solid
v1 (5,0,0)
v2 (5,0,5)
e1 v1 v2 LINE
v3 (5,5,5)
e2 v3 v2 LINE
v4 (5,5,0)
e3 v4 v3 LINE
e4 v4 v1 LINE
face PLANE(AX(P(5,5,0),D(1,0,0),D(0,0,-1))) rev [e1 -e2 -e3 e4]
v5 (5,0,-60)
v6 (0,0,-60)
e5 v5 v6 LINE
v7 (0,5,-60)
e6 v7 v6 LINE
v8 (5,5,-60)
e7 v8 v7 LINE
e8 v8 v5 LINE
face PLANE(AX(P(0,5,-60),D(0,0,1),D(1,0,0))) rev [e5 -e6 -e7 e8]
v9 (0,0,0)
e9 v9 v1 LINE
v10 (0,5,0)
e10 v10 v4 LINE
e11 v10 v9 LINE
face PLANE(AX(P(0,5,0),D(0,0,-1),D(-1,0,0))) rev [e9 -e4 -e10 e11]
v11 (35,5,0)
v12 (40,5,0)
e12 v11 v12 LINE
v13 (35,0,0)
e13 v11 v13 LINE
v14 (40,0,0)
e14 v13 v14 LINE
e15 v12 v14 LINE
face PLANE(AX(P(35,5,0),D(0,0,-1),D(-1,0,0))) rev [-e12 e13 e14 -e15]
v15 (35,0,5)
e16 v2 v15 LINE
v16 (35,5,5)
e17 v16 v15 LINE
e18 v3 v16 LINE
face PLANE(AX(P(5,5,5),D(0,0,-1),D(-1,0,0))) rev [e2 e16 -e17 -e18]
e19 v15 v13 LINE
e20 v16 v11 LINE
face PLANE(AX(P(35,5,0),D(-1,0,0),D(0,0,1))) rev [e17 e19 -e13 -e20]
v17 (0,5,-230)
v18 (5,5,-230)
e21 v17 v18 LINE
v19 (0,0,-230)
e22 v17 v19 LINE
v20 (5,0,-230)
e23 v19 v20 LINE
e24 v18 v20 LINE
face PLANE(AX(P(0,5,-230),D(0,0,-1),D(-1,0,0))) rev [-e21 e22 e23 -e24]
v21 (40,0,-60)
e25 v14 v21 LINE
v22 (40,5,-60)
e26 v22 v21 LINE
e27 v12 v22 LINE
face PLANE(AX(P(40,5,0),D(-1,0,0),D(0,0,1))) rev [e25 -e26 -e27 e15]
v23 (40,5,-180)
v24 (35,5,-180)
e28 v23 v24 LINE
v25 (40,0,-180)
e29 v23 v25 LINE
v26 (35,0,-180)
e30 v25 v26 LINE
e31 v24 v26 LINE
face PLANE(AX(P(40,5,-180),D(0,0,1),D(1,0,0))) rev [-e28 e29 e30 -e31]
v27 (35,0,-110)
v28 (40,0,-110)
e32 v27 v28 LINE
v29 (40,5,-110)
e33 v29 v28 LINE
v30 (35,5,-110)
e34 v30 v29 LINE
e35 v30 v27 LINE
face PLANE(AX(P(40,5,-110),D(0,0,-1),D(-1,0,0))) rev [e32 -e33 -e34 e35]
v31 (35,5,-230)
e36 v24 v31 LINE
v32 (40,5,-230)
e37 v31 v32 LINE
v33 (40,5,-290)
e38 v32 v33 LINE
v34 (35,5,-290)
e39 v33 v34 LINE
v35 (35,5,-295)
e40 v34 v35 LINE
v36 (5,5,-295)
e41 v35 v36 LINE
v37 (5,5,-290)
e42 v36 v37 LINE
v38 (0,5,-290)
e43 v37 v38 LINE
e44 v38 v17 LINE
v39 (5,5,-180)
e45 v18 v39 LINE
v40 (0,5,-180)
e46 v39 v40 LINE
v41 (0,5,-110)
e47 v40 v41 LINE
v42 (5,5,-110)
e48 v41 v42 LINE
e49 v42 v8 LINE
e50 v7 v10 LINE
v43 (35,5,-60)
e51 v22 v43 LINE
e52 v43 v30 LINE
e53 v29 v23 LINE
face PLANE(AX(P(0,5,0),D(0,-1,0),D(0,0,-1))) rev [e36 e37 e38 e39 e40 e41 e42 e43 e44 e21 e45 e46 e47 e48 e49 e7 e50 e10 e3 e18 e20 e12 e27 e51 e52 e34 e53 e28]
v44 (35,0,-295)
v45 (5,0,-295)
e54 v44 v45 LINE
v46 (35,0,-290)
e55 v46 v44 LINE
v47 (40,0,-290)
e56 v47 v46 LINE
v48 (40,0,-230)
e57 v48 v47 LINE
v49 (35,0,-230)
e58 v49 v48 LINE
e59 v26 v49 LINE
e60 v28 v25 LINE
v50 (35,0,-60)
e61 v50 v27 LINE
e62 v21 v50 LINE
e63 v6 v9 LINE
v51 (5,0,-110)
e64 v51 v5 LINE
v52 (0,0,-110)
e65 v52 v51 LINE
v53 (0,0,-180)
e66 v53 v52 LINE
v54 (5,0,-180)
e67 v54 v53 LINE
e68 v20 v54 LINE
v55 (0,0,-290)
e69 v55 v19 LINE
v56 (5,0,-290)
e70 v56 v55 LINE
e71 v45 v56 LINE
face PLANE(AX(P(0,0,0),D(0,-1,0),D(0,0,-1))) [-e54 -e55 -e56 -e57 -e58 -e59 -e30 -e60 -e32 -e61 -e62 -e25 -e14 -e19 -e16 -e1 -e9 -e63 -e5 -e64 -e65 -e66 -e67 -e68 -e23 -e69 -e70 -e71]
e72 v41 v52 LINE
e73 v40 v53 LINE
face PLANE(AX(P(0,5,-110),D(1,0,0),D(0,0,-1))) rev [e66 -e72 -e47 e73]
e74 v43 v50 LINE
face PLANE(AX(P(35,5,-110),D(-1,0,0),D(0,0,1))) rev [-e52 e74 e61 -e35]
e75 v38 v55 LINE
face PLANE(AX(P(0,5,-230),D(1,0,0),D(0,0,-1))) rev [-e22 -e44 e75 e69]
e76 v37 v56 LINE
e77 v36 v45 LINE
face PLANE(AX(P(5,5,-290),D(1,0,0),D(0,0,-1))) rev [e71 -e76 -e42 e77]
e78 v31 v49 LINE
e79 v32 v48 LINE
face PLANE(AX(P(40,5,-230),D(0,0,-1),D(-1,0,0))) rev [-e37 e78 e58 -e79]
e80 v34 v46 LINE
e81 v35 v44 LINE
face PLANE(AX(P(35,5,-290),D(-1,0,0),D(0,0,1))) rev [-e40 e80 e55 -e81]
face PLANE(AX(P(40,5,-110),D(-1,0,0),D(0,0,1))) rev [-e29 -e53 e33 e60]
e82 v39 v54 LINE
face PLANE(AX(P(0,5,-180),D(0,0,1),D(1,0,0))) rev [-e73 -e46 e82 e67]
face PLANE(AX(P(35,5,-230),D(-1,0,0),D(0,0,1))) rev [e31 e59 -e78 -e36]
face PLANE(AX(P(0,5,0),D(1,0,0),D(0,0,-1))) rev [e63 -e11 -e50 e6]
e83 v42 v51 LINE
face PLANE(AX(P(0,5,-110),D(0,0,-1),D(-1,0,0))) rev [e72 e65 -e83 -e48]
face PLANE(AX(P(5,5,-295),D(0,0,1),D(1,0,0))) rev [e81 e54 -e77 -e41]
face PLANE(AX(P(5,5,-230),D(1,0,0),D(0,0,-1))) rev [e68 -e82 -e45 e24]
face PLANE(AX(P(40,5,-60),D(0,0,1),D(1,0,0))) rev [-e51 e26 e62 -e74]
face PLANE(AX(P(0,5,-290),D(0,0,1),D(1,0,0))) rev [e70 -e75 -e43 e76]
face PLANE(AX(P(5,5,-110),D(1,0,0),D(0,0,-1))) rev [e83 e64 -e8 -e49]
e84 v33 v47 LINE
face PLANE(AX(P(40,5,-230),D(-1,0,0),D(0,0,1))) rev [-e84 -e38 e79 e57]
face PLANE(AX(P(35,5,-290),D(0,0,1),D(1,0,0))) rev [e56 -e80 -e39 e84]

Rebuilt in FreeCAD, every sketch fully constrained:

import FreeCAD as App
import Part
import Sketcher
from FreeCAD import Vector


def add_polygon(sketch, points):
    """Adds a closed chain of lines whose ends are joined by coincident constraints."""
    first, n = sketch.GeometryCount, len(points)
    for a, b in zip(points, points[1:] + points[:1]):
        sketch.addGeometry(Part.LineSegment(App.Vector(*a, 0), App.Vector(*b, 0)), False)
    for i in range(n):
        sketch.addConstraint(Sketcher.Constraint("Coincident", first + i, 2, first + (i + 1) % n, 1))

doc = App.newDocument("Part")
params = doc.addObject("Spreadsheet::Sheet", "Params")
for row, (alias, value) in enumerate([
    ("sketch1_width", "5 mm"),
    ("sketch1_width2", "30 mm"),
    ("sketch1_height", "60 mm"),
    ("sketch1_height2", "50 mm"),
    ("sketch1_height3", "70 mm"),
    ("pad1_length", "5 mm"),
], start=1):
    params.set(f"A{row}", alias)
    params.set(f"B{row}", "=" + value)
    params.setAlias(f"B{row}", alias)

body = doc.addObject("PartDesign::Body", "Body")

sketch1 = doc.addObject("Sketcher::SketchObject", "Sketch")
body.addObject(sketch1)
sketch1.AttachmentSupport = (doc.XZ_Plane, [""])
sketch1.MapMode = "FlatFace"
add_polygon(sketch1, [(40, -290), (35, -290), (35, -295), (5, -295), (5, -290), (0, -290), (0, -230), (5, -230), (5, -180), (0, -180), (0, -110), (5, -110), (5, -60), (0, -60), (0, 0), (5, 0), (5, 5), (35, 5), (35, 0), (40, 0), (40, -60), (35, -60), (35, -110), (40, -110), (40, -180), (35, -180), (35, -230), (40, -230)])
sketch1.addConstraint(Sketcher.Constraint("Horizontal", 0))
sketch1.addConstraint(Sketcher.Constraint("Vertical", 1))
sketch1.addConstraint(Sketcher.Constraint("Horizontal", 2))
sketch1.addConstraint(Sketcher.Constraint("Vertical", 3))
sketch1.addConstraint(Sketcher.Constraint("Horizontal", 4))
sketch1.addConstraint(Sketcher.Constraint("Vertical", 5))
sketch1.addConstraint(Sketcher.Constraint("Horizontal", 6))
sketch1.addConstraint(Sketcher.Constraint("Vertical", 7))
sketch1.addConstraint(Sketcher.Constraint("Horizontal", 8))
sketch1.addConstraint(Sketcher.Constraint("Vertical", 9))
sketch1.addConstraint(Sketcher.Constraint("Horizontal", 10))
sketch1.addConstraint(Sketcher.Constraint("Vertical", 11))
sketch1.addConstraint(Sketcher.Constraint("Horizontal", 12))
sketch1.addConstraint(Sketcher.Constraint("Vertical", 13))
sketch1.addConstraint(Sketcher.Constraint("Horizontal", 14))
sketch1.addConstraint(Sketcher.Constraint("Vertical", 15))
sketch1.addConstraint(Sketcher.Constraint("Horizontal", 16))
sketch1.addConstraint(Sketcher.Constraint("Vertical", 17))
sketch1.addConstraint(Sketcher.Constraint("Horizontal", 18))
sketch1.addConstraint(Sketcher.Constraint("Vertical", 19))
sketch1.addConstraint(Sketcher.Constraint("Horizontal", 20))
sketch1.addConstraint(Sketcher.Constraint("Vertical", 21))
sketch1.addConstraint(Sketcher.Constraint("Horizontal", 22))
sketch1.addConstraint(Sketcher.Constraint("Vertical", 23))
sketch1.addConstraint(Sketcher.Constraint("Horizontal", 24))
sketch1.addConstraint(Sketcher.Constraint("Vertical", 25))
sketch1.addConstraint(Sketcher.Constraint("Horizontal", 26))
sketch1.addConstraint(Sketcher.Constraint("Vertical", 27))
sketch1.addConstraint(Sketcher.Constraint("Coincident", 13, 2, -1, 1))
sketch1.addConstraint(Sketcher.Constraint("PointOnObject", 4, 2, -2))
sketch1.addConstraint(Sketcher.Constraint("PointOnObject", 8, 2, -2))
sketch1.addConstraint(Sketcher.Constraint("PointOnObject", 17, 2, -1))
sketch1.addConstraint(Sketcher.Constraint("Horizontal", 0, 2, 3, 2))
sketch1.addConstraint(Sketcher.Constraint("Horizontal", 12, 2, 19, 2))
sketch1.addConstraint(Sketcher.Constraint("Horizontal", 10, 2, 21, 2))
sketch1.addConstraint(Sketcher.Constraint("Horizontal", 8, 2, 23, 2))
sketch1.addConstraint(Sketcher.Constraint("Horizontal", 6, 2, 25, 2))
sketch1.addConstraint(Sketcher.Constraint("Vertical", 3, 2, 6, 2))
sketch1.addConstraint(Sketcher.Constraint("Vertical", 7, 2, 10, 2))
sketch1.addConstraint(Sketcher.Constraint("Vertical", 11, 2, 14, 2))
sketch1.addConstraint(Sketcher.Constraint("Vertical", 1, 2, 16, 2))
sketch1.addConstraint(Sketcher.Constraint("Vertical", 17, 2, 20, 2))
sketch1.addConstraint(Sketcher.Constraint("Vertical", 19, 2, 22, 2))
sketch1.addConstraint(Sketcher.Constraint("Vertical", 21, 2, 24, 2))
sketch1.addConstraint(Sketcher.Constraint("Vertical", 23, 2, 26, 2))
sketch1.addConstraint(Sketcher.Constraint("Equal", 0, 4))
sketch1.addConstraint(Sketcher.Constraint("Equal", 26, 1))
sketch1.addConstraint(Sketcher.Constraint("Equal", 7, 11))
sketch1.addConstraint(Sketcher.Constraint("Equal", 5, 13))
sketch1.addConstraint(Sketcher.Constraint("Equal", 3, 15))
sketch1.addConstraint(Sketcher.Constraint("DistanceX", 0, 2, 0, 1, 5.0))
sketch1.addConstraint(Sketcher.Constraint("DistanceX", 2, 2, 2, 1, 30.0))
sketch1.addConstraint(Sketcher.Constraint("DistanceY", 5, 1, 5, 2, 60.0))
sketch1.addConstraint(Sketcher.Constraint("DistanceY", 7, 1, 7, 2, 50.0))
sketch1.addConstraint(Sketcher.Constraint("DistanceY", 9, 1, 9, 2, 70.0))
sketch1.setExpression("Constraints[78]", "Params.sketch1_width")
sketch1.setExpression("Constraints[79]", "Params.sketch1_width2")
sketch1.setExpression("Constraints[80]", "Params.sketch1_height")
sketch1.setExpression("Constraints[81]", "Params.sketch1_height2")
sketch1.setExpression("Constraints[82]", "Params.sketch1_height3")
pad1 = doc.addObject("PartDesign::Pad", "Pad")
body.addObject(pad1)
pad1.Profile = sketch1
pad1.setExpression("Length", "Params.pad1_length")
pad1.Reversed = True

doc.recompute()
